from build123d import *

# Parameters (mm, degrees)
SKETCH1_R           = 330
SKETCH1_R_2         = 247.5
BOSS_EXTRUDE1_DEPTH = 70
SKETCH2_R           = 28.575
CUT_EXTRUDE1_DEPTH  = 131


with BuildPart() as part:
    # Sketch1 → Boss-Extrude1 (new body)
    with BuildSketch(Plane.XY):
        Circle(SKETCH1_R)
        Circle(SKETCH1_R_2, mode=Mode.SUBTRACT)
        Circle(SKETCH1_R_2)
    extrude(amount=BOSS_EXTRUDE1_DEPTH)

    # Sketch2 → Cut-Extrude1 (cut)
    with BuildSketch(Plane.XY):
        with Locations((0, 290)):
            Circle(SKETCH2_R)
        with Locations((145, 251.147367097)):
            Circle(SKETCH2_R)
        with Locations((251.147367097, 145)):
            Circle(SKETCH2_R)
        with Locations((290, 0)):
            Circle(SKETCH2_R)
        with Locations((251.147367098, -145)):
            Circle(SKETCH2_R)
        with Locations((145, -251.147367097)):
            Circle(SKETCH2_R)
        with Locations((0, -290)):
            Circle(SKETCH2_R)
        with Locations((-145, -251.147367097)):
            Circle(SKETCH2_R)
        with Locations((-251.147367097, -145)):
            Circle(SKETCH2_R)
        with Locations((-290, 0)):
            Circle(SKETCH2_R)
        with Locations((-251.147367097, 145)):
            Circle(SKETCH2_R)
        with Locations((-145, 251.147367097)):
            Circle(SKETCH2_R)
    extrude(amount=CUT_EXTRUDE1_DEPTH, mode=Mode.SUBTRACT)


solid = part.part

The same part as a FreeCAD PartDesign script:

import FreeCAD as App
import Part
import Sketcher
from FreeCAD import Vector

doc = App.newDocument("Part")
params = doc.addObject("Spreadsheet::Sheet", "Params")
for row, (alias, value) in enumerate([
    ("sketch1_diameter", "660 mm"),
    ("pad1_length", "70 mm"),
    ("sketch2_diameter", "57.15 mm"),
    ("pocket1_length", "131 mm"),
], start=1):
    params.set(f"A{row}", alias)
    params.set(f"B{row}", "=" + value)
    params.setAlias(f"B{row}", alias)

body = doc.addObject("PartDesign::Body", "Body")

# Sketch on XY plane
sketch1 = doc.addObject("Sketcher::SketchObject", "Sketch")
body.addObject(sketch1)
sketch1.AttachmentSupport = (doc.XY_Plane, [""])
sketch1.MapMode = "FlatFace"
sketch1.addGeometry(Part.Circle(Vector(0, 0, 0), Vector(0, 0, 1), 330), False)
sketch1.addConstraint([
    Sketcher.Constraint("Coincident", 0, 3, -1, 1),
    Sketcher.Constraint("Diameter", 0, 660.0),
])
sketch1.setExpression("Constraints[1]", "Params.sketch1_diameter")
pad1 = doc.addObject("PartDesign::Pad", "Pad")
body.addObject(pad1)
pad1.Profile = sketch1
pad1.setExpression("Length", "Params.pad1_length")

# Sketch on XY plane
sketch2 = doc.addObject("Sketcher::SketchObject", "Sketch001")
body.addObject(sketch2)
sketch2.AttachmentSupport = (doc.XY_Plane, [""])
sketch2.MapMode = "FlatFace"
sketch2.addGeometry([
    Part.Circle(Vector(0, 290, 0), Vector(0, 0, 1), 29),  # 0
    Part.Circle(Vector(145, 251, 0), Vector(0, 0, 1), 29),  # 1
    Part.Circle(Vector(251, 145, 0), Vector(0, 0, 1), 29),  # 2
    Part.Circle(Vector(290, 0, 0), Vector(0, 0, 1), 29),  # 3
    Part.Circle(Vector(251, -145, 0), Vector(0, 0, 1), 29),  # 4
    Part.Circle(Vector(145, -251, 0), Vector(0, 0, 1), 29),  # 5
    Part.Circle(Vector(0, -290, 0), Vector(0, 0, 1), 29),  # 6
    Part.Circle(Vector(-145, -251, 0), Vector(0, 0, 1), 29),  # 7
    Part.Circle(Vector(-251, -145, 0), Vector(0, 0, 1), 29),  # 8
    Part.Circle(Vector(-290, 0, 0), Vector(0, 0, 1), 29),  # 9
    Part.Circle(Vector(-251, 145, 0), Vector(0, 0, 1), 29),  # 10
    Part.Circle(Vector(-145, 251, 0), Vector(0, 0, 1), 29),  # 11
], False)
sketch2.addConstraint([
    Sketcher.Constraint("Equal", 0, 1),
    Sketcher.Constraint("Equal", 1, 2),
    Sketcher.Constraint("Equal", 2, 3),
    Sketcher.Constraint("Equal", 3, 4),
    Sketcher.Constraint("Equal", 4, 5),
    Sketcher.Constraint("Equal", 5, 6),
    Sketcher.Constraint("Equal", 6, 7),
    Sketcher.Constraint("Equal", 7, 8),
    Sketcher.Constraint("Equal", 8, 9),
    Sketcher.Constraint("Equal", 9, 10),
    Sketcher.Constraint("Equal", 10, 11),
    Sketcher.Constraint("Symmetric", 0, 3, 6, 3, -1, 1),
    Sketcher.Constraint("Symmetric", 1, 3, 7, 3, -1, 1),
    Sketcher.Constraint("Symmetric", 2, 3, 8, 3, -1, 1),
    Sketcher.Constraint("Symmetric", 3, 3, 9, 3, -1, 1),
    Sketcher.Constraint("Symmetric", 4, 3, 10, 3, -1, 1),
    Sketcher.Constraint("Symmetric", 5, 3, 11, 3, -1, 1),
    Sketcher.Constraint("Symmetric", 5, 3, 7, 3, -2),
    Sketcher.Constraint("Symmetric", 4, 3, 8, 3, -2),
    Sketcher.Constraint("PointOnObject", 0, 3, -2),
    Sketcher.Constraint("PointOnObject", 3, 3, -1),
    Sketcher.Constraint("Diameter", 0, 57.15),
    Sketcher.Constraint("DistanceY", -1, 1, 0, 3, 290.0),
    Sketcher.Constraint("DistanceX", -1, 1, 1, 3, 145.0),
    Sketcher.Constraint("DistanceY", -1, 1, 2, 3, 145.0),
    Sketcher.Constraint("DistanceX", -1, 1, 3, 3, 290.0),
    Sketcher.Constraint("DistanceY", -1, 1, 1, 3, 251.147367),
    Sketcher.Constraint("DistanceX", -1, 1, 2, 3, 251.147367),
])
sketch2.setExpression("Constraints[21]", "Params.sketch2_diameter")
pocket1 = doc.addObject("PartDesign::Pocket", "Pocket")
body.addObject(pocket1)
pocket1.Profile = sketch2
pocket1.setExpression("Length", "Params.pocket1_length")
pocket1.Reversed = True

doc.recompute()
